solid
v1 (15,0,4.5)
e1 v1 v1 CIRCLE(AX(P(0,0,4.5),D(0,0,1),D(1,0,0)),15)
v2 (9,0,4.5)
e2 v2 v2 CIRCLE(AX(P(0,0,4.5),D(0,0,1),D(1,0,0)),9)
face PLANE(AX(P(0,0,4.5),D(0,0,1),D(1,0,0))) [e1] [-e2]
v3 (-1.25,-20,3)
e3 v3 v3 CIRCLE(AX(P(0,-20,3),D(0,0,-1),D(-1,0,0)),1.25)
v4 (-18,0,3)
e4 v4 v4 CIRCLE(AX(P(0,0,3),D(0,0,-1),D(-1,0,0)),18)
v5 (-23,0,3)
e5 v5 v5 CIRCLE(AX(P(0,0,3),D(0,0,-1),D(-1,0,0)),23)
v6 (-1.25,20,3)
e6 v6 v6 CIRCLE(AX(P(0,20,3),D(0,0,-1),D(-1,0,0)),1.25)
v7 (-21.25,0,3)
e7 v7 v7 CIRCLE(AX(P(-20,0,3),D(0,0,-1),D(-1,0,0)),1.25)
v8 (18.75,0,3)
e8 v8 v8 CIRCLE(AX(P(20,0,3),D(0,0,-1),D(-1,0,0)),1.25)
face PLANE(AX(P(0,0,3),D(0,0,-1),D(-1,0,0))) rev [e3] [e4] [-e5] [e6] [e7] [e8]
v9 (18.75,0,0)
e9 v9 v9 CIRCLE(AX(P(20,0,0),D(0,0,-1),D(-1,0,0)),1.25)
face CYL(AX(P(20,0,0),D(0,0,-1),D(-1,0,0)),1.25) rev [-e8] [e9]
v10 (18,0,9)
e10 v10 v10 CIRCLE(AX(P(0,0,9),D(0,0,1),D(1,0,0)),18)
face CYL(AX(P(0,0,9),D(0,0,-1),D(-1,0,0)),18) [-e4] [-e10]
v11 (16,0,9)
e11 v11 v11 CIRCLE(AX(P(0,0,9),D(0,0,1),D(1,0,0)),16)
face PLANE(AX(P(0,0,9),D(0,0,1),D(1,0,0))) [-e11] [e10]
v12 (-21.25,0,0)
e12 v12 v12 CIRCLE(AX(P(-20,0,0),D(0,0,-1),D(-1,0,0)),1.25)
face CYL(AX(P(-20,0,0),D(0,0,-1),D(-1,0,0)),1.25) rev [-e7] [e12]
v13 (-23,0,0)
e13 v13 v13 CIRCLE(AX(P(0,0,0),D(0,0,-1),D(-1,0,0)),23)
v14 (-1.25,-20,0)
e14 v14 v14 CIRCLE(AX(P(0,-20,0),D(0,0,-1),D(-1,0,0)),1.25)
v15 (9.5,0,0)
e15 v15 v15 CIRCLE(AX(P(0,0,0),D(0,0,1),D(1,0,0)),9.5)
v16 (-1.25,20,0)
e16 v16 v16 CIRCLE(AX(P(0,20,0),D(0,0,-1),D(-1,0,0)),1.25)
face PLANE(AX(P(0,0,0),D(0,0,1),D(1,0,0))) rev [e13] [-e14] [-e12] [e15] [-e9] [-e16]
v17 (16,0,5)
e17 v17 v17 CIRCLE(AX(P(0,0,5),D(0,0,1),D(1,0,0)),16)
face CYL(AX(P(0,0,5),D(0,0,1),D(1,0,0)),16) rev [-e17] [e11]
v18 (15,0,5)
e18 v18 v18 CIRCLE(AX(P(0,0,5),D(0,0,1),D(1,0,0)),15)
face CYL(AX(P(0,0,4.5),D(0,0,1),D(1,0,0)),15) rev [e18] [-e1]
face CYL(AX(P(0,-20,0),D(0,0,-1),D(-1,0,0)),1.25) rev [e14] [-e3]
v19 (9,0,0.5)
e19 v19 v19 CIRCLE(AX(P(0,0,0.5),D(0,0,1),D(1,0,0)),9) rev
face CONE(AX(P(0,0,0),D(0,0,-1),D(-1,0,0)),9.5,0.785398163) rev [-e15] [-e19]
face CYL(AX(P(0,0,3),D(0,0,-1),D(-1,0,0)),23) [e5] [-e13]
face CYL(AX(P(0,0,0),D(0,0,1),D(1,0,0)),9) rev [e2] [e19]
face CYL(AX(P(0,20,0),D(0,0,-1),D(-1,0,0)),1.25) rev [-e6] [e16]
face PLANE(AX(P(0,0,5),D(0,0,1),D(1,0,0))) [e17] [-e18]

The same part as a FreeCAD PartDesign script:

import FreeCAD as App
import Part
import Sketcher

V = App.Vector
Q = App.Units.Quantity


def edges_at(feature, points):
    """Names of the edges that pass closest to the given points."""
    edges = feature.Shape.Edges
    near = lambda p: min(range(len(edges)), key=lambda i: edges[i].distToShape(Part.Vertex(*p))[0])
    return sorted({f"Edge{near(p) + 1}" for p in points})

doc = App.newDocument("Part")
body = doc.addObject("PartDesign::Body", "Body")

# Sketch on XY plane
sketch1 = body.newObject("Sketcher::SketchObject", "Sketch")
sketch1.AttachmentSupport = (doc.getObject("XY_Plane"), [""])
sketch1.MapMode = "FlatFace"
sketch1.addGeometry(Part.Circle(V(0, 0, 0), V(0, 0, 1), 18), False)
sketch1.addConstraint([
    Sketcher.Constraint("Coincident", 0, 3, -1, 1),
    Sketcher.Constraint("Diameter", 0, Q("36 mm")),
])
pad1 = body.newObject("PartDesign::Pad", "Pad")
pad1.Profile = sketch1
pad1.Length = 9

# Sketch on XY plane
sketch2 = body.newObject("Sketcher::SketchObject", "Sketch001")
sketch2.AttachmentSupport = (doc.getObject("XY_Plane"), [""])
sketch2.MapMode = "FlatFace"
sketch2.AttachmentOffset = App.Placement(V(0, 0, 9), App.Rotation())
sketch2.addGeometry(Part.Circle(V(0, 0, 0), V(0, 0, 1), 16), False)
sketch2.addConstraint([
    Sketcher.Constraint("Coincident", 0, 3, -1, 1),
    Sketcher.Constraint("Diameter", 0, Q("32 mm")),
])
pocket1 = body.newObject("PartDesign::Pocket", "Pocket")
pocket1.Profile = sketch2
pocket1.Length = 4

# Sketch on XY plane
sketch3 = body.newObject("Sketcher::SketchObject", "Sketch002")
sketch3.AttachmentSupport = (doc.getObject("XY_Plane"), [""])
sketch3.MapMode = "FlatFace"
sketch3.AttachmentOffset = App.Placement(V(0, 0, 5), App.Rotation())
sketch3.addGeometry(Part.Circle(V(0, 0, 0), V(0, 0, 1), 15), False)
sketch3.addConstraint([
    Sketcher.Constraint("Coincident", 0, 3, -1, 1),
    Sketcher.Constraint("Diameter", 0, Q("30 mm")),
])
pocket2 = body.newObject("PartDesign::Pocket", "Pocket001")
pocket2.Profile = sketch3
pocket2.Length = 0.5

# Sketch on XY plane
sketch4 = body.newObject("Sketcher::SketchObject", "Sketch003")
sketch4.AttachmentSupport = (doc.getObject("XY_Plane"), [""])
sketch4.MapMode = "FlatFace"
sketch4.AttachmentOffset = App.Placement(V(0, 0, 4.5), App.Rotation())
sketch4.addGeometry(Part.Circle(V(0, 0, 0), V(0, 0, 1), 9), False)
sketch4.addConstraint([
    Sketcher.Constraint("Coincident", 0, 3, -1, 1),
    Sketcher.Constraint("Diameter", 0, Q("18 mm")),
])
pocket3 = body.newObject("PartDesign::Pocket", "Pocket002")
pocket3.Profile = sketch4
pocket3.Type = "ThroughAll"

# Sketch on XY plane
sketch5 = body.newObject("Sketcher::SketchObject", "Sketch004")
sketch5.AttachmentSupport = (doc.getObject("XY_Plane"), [""])
sketch5.MapMode = "FlatFace"
sketch5.addGeometry([
    Part.Circle(V(0, 0, 0), V(0, 0, 1), 23),
    Part.Circle(V(0, 0, 0), V(0, 0, 1), 18),
], False)
sketch5.addConstraint([
    Sketcher.Constraint("Coincident", 0, 3, -1, 1),
    Sketcher.Constraint("Coincident", 1, 3, -1, 1),
    Sketcher.Constraint("Diameter", 0, Q("46 mm")),
    Sketcher.Constraint("Diameter", 1, Q("36 mm")),
])
pad2 = body.newObject("PartDesign::Pad", "Pad001")
pad2.Profile = sketch5
pad2.Length = 3
doc.recompute()

chamfer = body.newObject("PartDesign::Chamfer", "Chamfer")
chamfer.Base = (pad2, edges_at(pad2, [(-9, 0, 0)]))
chamfer.Size = 0.5

# Sketch on XY plane
sketch6 = body.newObject("Sketcher::SketchObject", "Sketch005")
sketch6.AttachmentSupport = (doc.getObject("XY_Plane"), [""])
sketch6.MapMode = "FlatFace"
sketch6.addGeometry([
    Part.Circle(V(0, 20, 0), V(0, 0, 1), 1.2),
    Part.Circle(V(20, 0, 0), V(0, 0, 1), 1.2),
    Part.Circle(V(0, -20, 0), V(0, 0, 1), 1.2),
    Part.Circle(V(-20, 0, 0), V(0, 0, 1), 1.2),
], False)
sketch6.addConstraint([
    Sketcher.Constraint("Equal", 0, 1),
    Sketcher.Constraint("Equal", 1, 2),
    Sketcher.Constraint("Equal", 2, 3),
    Sketcher.Constraint("Symmetric", 0, 3, 2, 3, -1, 1),
    Sketcher.Constraint("Symmetric", 1, 3, 3, 3, -1, 1),
    Sketcher.Constraint("PointOnObject", 0, 3, -2),
    Sketcher.Constraint("PointOnObject", 1, 3, -1),
    Sketcher.Constraint("Diameter", 0, Q("2.5 mm")),
    Sketcher.Constraint("DistanceY", -1, 1, 0, 3, Q("20 mm")),
    Sketcher.Constraint("DistanceX", -1, 1, 1, 3, Q("20 mm")),
])
doc.recompute()
hole = body.newObject("PartDesign::Hole", "Hole")
hole.Profile = sketch6
hole.ThreadType = "None"
hole.Diameter = 2.5
hole.DepthType = "ThroughAll"
hole.Reversed = True

doc.recompute()
